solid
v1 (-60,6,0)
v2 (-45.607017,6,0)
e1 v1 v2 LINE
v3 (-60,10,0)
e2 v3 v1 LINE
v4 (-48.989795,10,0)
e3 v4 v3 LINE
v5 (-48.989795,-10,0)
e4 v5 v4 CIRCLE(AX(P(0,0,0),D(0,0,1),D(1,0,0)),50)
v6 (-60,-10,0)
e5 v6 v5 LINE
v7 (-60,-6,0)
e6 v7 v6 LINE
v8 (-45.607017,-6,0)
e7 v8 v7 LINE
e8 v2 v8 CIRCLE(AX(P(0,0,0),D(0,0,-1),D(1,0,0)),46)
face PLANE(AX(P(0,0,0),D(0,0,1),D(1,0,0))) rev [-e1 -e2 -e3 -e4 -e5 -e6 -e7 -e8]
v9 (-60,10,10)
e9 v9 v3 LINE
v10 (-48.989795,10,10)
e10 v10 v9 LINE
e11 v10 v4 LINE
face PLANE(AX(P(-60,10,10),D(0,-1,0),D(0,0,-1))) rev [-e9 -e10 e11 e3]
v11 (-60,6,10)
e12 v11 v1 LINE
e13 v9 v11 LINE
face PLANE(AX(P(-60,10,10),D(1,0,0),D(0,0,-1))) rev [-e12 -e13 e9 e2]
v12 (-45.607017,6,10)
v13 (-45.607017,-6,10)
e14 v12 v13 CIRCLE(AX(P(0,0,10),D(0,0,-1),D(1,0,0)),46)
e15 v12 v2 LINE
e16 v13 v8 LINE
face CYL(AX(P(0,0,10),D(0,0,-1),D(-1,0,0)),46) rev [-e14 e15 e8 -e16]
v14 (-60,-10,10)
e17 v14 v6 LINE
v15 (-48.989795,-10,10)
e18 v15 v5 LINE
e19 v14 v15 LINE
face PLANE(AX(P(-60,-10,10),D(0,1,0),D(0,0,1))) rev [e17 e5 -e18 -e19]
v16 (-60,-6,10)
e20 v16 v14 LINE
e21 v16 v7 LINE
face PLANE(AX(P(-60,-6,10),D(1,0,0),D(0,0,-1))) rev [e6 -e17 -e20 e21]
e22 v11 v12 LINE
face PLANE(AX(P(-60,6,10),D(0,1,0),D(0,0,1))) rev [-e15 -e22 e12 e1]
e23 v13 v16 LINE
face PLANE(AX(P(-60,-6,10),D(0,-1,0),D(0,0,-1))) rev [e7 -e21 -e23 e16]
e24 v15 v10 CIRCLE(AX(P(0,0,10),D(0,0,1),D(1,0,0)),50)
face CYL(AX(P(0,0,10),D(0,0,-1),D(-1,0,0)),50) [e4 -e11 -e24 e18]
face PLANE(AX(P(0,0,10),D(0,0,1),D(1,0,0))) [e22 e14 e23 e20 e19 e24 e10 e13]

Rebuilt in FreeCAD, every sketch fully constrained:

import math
import FreeCAD as App
import Part
import Sketcher
Q = App.Units.Quantity

doc = App.newDocument("Part")
body = doc.addObject("PartDesign::Body", "Body")

# Sketch on XY plane
sketch1 = doc.addObject("Sketcher::SketchObject", "Sketch")
body.addObject(sketch1)
sketch1.AttachmentSupport = (doc.XY_Plane, [""])
sketch1.MapMode = "FlatFace"
sketch1.addGeometry(Part.LineSegment(App.Vector(-49, 10, 0), App.Vector(-60, 10, 0)), False)
sketch1.addGeometry(Part.LineSegment(App.Vector(-60, 10, 0), App.Vector(-60, 6, 0)), False)
sketch1.addGeometry(Part.LineSegment(App.Vector(-60, 6, 0), App.Vector(-45.6, 6, 0)), False)
sketch1.addGeometry(Part.ArcOfCircle(Part.Circle(App.Vector(0, 0, 0), App.Vector(0, 0, 1), 46), math.radians(-173), math.radians(173)), False)
sketch1.addGeometry(Part.LineSegment(App.Vector(-45.6, -6, 0), App.Vector(-60, -6, 0)), False)
sketch1.addGeometry(Part.LineSegment(App.Vector(-60, -6, 0), App.Vector(-60, -10, 0)), False)
sketch1.addGeometry(Part.LineSegment(App.Vector(-60, -10, 0), App.Vector(-49, -10, 0)), False)
sketch1.addGeometry(Part.ArcOfCircle(Part.Circle(App.Vector(0, 0, 0), App.Vector(0, 0, 1), 50), math.radians(-168), math.radians(168)), False)
sketch1.addConstraint(Sketcher.Constraint("Coincident", 0, 2, 1, 1))
sketch1.addConstraint(Sketcher.Constraint("Coincident", 1, 2, 2, 1))
sketch1.addConstraint(Sketcher.Constraint("Coincident", 2, 2, 3, 2))
sketch1.addConstraint(Sketcher.Constraint("Coincident", 3, 1, 4, 1))
sketch1.addConstraint(Sketcher.Constraint("Coincident", 4, 2, 5, 1))
sketch1.addConstraint(Sketcher.Constraint("Coincident", 5, 2, 6, 1))
sketch1.addConstraint(Sketcher.Constraint("Coincident", 6, 2, 7, 1))
sketch1.addConstraint(Sketcher.Constraint("Coincident", 7, 2, 0, 1))
sketch1.addConstraint(Sketcher.Constraint("Horizontal", 0))
sketch1.addConstraint(Sketcher.Constraint("Vertical", 1))
sketch1.addConstraint(Sketcher.Constraint("Horizontal", 2))
sketch1.addConstraint(Sketcher.Constraint("Horizontal", 4))
sketch1.addConstraint(Sketcher.Constraint("Vertical", 5))
sketch1.addConstraint(Sketcher.Constraint("Horizontal", 6))
sketch1.addConstraint(Sketcher.Constraint("Coincident", 3, 3, -1, 1))
sketch1.addConstraint(Sketcher.Constraint("Coincident", 7, 3, -1, 1))
sketch1.addConstraint(Sketcher.Constraint("Symmetric", 1, 2, 4, 2, -1))
sketch1.addConstraint(Sketcher.Constraint("Vertical", 6, 2, 7, 2))
sketch1.addConstraint(Sketcher.Constraint("Radius", 3, Q("46 mm")))
sketch1.addConstraint(Sketcher.Constraint("Radius", 7, Q("50 mm")))
sketch1.addConstraint(Sketcher.Constraint("DistanceY", 1, 2, 1, 1, Q("4 mm")))
sketch1.addConstraint(Sketcher.Constraint("DistanceX", 0, 2, -1, 1, Q("60 mm")))
sketch1.addConstraint(Sketcher.Constraint("DistanceY", -1, 1, 0, 2, Q("10 mm")))
pad1 = doc.addObject("PartDesign::Pad", "Pad")
body.addObject(pad1)
pad1.Profile = sketch1
pad1.Length = 10

doc.recompute()
